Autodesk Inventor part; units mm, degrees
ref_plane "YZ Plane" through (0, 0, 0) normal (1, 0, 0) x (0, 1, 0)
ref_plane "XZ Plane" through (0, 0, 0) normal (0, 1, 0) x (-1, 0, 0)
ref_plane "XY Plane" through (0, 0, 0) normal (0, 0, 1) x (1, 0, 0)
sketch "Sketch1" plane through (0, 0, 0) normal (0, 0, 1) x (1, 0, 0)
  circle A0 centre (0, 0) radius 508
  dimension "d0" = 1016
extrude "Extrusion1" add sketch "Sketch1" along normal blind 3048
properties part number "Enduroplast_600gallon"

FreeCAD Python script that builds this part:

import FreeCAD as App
import Part
import Sketcher
Q = App.Units.Quantity

doc = App.newDocument("Part")
params = doc.addObject("Spreadsheet::Sheet", "Params")
for row, (alias, value) in enumerate([
    ("sketch1_diameter", "40 in"),
    ("pad1_length", "120 in"),
], start=1):
    params.set(f"A{row}", alias)
    params.set(f"B{row}", "=" + value)
    params.setAlias(f"B{row}", alias)

body = doc.addObject("PartDesign::Body", "Body")

# Sketch on XY plane
sketch1 = body.newObject("Sketcher::SketchObject", "Sketch")
sketch1.AttachmentSupport = (doc.getObject("XY_Plane"), [""])
sketch1.MapMode = "FlatFace"
sketch1.addGeometry(Part.Circle(App.Vector(0, 0, 0), App.Vector(0, 0, 1), 508), False)
sketch1.addConstraint([
    Sketcher.Constraint("Coincident", 0, 3, -1, 1),
    Sketcher.Constraint("Diameter", 0, Q("40 in")),
])
sketch1.setExpression("Constraints[1]", "Params.sketch1_diameter")
pad1 = body.newObject("PartDesign::Pad", "Pad")
pad1.Profile = sketch1
pad1.setExpression("Length", "Params.pad1_length")

doc.recompute()
